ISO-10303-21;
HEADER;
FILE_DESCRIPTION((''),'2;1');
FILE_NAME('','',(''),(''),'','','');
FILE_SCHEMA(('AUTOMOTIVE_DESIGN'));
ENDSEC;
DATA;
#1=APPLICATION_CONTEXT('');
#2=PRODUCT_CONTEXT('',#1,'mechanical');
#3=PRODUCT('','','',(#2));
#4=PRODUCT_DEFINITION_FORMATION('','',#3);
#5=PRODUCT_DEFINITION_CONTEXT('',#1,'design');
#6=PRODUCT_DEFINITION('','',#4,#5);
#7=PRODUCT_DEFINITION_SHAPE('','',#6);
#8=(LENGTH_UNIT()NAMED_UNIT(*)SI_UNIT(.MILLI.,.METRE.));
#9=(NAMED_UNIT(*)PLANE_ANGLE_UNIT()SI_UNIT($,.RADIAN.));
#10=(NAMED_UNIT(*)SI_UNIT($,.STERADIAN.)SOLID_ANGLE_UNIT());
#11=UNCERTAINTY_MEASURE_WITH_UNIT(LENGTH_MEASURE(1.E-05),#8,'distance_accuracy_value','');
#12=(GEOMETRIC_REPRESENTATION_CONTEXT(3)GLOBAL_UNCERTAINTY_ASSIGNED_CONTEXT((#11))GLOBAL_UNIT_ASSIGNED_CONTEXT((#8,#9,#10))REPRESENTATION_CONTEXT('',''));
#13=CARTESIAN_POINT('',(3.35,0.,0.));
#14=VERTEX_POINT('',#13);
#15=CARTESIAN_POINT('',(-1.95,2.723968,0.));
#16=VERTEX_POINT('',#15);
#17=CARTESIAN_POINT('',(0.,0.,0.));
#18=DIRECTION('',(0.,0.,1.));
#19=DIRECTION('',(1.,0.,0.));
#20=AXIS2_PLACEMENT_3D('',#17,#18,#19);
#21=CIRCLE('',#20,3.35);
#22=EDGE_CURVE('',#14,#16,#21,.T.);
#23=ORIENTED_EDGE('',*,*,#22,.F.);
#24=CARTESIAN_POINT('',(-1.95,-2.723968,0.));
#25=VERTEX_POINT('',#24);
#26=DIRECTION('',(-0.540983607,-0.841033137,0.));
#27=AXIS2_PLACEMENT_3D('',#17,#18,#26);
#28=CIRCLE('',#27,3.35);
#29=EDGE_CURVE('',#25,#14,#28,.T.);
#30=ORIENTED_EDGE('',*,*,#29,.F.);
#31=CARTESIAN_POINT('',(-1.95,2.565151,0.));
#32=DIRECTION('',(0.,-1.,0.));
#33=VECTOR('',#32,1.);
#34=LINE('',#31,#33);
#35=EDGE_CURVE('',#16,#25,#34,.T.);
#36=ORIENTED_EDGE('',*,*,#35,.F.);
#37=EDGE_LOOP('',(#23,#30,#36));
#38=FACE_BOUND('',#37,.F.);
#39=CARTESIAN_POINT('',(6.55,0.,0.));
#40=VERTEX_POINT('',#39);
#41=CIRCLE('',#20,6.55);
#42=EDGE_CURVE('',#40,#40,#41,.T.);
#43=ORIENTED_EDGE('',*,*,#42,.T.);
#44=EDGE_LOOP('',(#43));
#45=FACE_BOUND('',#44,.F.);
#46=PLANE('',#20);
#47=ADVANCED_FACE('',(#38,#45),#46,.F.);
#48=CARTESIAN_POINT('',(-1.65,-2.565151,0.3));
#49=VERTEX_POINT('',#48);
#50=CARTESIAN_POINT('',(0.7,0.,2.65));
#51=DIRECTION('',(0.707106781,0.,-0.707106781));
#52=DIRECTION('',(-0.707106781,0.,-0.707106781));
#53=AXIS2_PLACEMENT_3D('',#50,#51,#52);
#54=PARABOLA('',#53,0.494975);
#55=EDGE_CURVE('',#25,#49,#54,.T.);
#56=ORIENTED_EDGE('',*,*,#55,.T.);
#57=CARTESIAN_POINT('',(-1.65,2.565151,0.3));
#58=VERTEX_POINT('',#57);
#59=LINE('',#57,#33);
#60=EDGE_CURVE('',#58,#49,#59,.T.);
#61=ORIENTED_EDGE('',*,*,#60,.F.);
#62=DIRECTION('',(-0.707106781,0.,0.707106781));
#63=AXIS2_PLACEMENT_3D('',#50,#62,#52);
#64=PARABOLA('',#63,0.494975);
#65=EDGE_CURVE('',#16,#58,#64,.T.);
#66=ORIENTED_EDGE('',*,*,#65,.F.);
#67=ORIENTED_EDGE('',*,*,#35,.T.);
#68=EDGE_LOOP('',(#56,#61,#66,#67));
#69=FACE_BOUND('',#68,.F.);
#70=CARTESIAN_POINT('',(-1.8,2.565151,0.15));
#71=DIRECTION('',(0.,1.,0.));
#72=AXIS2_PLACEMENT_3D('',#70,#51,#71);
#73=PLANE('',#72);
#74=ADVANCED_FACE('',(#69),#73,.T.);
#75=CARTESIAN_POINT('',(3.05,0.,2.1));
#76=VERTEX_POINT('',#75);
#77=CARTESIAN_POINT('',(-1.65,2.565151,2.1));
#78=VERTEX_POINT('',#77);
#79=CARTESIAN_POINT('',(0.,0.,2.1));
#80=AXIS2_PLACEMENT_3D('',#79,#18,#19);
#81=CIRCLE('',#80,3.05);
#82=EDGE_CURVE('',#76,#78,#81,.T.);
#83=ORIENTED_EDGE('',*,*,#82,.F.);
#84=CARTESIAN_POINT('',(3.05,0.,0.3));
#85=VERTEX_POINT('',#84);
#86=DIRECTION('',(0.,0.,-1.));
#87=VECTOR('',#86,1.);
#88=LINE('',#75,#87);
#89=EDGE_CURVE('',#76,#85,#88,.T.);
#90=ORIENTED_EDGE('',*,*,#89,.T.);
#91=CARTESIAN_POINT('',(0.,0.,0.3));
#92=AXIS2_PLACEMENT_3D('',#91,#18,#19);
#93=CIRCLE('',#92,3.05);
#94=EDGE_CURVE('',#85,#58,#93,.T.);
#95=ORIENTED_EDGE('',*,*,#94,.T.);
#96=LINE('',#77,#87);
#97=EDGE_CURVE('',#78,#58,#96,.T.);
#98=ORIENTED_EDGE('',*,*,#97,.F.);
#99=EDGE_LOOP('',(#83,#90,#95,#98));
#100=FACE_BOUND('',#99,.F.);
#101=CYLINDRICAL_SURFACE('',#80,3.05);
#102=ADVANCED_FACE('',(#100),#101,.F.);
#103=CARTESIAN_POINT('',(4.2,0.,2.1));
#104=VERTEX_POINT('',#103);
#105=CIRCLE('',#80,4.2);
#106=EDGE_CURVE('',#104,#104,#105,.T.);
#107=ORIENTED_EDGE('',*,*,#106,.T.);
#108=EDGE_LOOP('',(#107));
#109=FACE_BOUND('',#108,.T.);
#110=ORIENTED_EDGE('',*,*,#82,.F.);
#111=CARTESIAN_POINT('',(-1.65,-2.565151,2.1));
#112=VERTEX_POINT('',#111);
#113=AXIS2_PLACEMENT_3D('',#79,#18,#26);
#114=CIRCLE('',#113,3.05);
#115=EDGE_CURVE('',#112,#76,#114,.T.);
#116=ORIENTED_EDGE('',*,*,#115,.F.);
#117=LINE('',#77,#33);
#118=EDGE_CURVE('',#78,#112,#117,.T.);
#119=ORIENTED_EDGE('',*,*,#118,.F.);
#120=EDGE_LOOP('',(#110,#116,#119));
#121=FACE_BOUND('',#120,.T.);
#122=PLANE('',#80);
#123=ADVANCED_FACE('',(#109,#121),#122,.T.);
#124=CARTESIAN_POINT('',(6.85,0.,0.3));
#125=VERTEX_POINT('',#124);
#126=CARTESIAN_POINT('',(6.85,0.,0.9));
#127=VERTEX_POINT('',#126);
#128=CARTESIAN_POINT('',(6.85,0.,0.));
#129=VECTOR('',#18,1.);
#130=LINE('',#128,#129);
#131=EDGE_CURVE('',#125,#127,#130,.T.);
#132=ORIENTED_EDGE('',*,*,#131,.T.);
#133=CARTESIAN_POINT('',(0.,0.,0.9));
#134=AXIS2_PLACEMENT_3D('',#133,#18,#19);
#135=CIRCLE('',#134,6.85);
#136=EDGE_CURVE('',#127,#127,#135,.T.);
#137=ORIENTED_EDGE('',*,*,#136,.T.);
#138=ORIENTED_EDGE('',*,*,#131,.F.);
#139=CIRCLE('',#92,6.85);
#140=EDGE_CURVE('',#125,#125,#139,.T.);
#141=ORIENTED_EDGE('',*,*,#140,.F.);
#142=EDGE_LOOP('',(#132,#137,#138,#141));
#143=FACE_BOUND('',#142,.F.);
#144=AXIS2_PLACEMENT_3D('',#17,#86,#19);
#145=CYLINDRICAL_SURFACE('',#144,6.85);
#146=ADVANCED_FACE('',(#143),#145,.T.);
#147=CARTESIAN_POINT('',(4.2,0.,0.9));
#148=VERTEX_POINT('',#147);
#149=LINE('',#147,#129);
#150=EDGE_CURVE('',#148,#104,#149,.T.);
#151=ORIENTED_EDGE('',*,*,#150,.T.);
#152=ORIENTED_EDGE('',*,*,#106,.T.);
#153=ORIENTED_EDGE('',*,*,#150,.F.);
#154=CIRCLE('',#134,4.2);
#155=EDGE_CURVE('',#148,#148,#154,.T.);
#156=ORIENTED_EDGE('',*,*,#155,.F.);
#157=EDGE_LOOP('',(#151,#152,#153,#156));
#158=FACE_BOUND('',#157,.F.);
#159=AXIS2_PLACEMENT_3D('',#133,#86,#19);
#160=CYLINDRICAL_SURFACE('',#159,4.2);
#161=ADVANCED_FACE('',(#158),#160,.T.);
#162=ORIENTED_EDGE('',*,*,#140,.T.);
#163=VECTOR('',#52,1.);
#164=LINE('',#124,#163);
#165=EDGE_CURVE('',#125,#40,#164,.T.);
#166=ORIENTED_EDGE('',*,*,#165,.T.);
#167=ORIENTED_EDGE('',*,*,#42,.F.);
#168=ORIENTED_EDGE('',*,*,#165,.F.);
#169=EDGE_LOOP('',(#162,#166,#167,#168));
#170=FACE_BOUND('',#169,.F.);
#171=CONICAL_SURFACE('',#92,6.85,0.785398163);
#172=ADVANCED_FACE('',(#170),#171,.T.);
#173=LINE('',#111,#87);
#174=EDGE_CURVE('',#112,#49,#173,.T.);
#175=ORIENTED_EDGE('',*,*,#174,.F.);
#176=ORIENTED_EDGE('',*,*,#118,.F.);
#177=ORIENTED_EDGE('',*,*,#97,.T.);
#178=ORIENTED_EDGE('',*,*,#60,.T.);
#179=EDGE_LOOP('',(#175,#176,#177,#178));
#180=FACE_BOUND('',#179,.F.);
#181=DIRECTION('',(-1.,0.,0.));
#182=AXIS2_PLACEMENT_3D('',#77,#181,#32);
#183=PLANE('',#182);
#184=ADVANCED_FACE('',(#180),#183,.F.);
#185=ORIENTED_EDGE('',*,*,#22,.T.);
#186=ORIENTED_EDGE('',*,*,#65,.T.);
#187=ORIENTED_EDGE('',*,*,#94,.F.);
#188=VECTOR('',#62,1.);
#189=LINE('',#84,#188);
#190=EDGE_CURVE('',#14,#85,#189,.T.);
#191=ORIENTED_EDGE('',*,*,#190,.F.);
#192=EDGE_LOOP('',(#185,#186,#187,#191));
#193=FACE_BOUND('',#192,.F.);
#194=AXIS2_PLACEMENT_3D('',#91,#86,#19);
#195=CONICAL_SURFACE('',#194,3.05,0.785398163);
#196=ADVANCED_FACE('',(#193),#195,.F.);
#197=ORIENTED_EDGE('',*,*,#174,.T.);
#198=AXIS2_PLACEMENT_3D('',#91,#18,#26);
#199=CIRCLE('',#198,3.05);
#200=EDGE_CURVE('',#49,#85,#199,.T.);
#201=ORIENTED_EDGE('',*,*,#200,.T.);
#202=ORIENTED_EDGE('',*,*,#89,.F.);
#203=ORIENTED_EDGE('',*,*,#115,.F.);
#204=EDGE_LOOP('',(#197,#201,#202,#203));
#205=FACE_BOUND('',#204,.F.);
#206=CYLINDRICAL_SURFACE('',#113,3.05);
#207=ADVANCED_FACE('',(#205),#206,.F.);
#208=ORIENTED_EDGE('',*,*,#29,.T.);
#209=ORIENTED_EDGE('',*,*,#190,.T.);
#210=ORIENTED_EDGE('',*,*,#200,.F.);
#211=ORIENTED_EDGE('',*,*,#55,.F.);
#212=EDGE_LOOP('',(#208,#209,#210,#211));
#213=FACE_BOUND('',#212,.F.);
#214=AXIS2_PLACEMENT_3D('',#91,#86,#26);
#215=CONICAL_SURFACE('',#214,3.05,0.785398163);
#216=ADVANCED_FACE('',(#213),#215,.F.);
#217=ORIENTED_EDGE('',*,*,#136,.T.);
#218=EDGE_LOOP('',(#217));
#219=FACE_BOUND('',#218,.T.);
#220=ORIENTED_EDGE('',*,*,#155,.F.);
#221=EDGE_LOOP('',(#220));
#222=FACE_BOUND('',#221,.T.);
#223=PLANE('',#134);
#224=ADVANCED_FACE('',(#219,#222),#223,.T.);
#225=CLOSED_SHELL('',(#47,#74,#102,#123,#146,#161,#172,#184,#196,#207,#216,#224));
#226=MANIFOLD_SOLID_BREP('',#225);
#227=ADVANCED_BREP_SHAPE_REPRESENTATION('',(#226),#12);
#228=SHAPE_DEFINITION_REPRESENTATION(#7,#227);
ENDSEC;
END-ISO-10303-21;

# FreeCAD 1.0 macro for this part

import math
import FreeCAD as App
import Part
import Sketcher
from FreeCAD import Vector


def edges_at(feature, points):
    """Names of the edges that pass closest to the given points."""
    edges = feature.Shape.Edges
    near = lambda p: min(range(len(edges)), key=lambda i: edges[i].distToShape(Part.Vertex(*p))[0])
    return sorted({f"Edge{near(p) + 1}" for p in points})

doc = App.newDocument("Part")
body = doc.addObject("PartDesign::Body", "Body")

# Sketch on XY plane
sketch1 = body.newObject("Sketcher::SketchObject", "Sketch")
sketch1.AttachmentSupport = (doc.getObject("XY_Plane"), [""])
sketch1.MapMode = "FlatFace"
sketch1.addGeometry(Part.Circle(Vector(0, 0, 0), Vector(0, 0, 1), 7), False)
sketch1.addConstraint([
    Sketcher.Constraint("Coincident", 0, 3, -1, 1),
    Sketcher.Constraint("Diameter", 0, 13.7),
])
pad1 = body.newObject("PartDesign::Pad", "Pad")
pad1.Profile = sketch1
pad1.Length = 0.9

# Sketch on XY plane
sketch2 = body.newObject("Sketcher::SketchObject", "Sketch001")
sketch2.AttachmentSupport = (doc.getObject("XY_Plane"), [""])
sketch2.MapMode = "FlatFace"
sketch2.AttachmentOffset = App.Placement(Vector(0, 0, 0.9), App.Rotation())
sketch2.addGeometry(Part.Circle(Vector(0, 0, 0), Vector(0, 0, 1), 4.2), False)
sketch2.addConstraint([
    Sketcher.Constraint("Coincident", 0, 3, -1, 1),
    Sketcher.Constraint("Diameter", 0, 8.4),
])
pad2 = body.newObject("PartDesign::Pad", "Pad001")
pad2.Profile = sketch2
pad2.Length = 1.2

# Sketch on XY plane
sketch3 = body.newObject("Sketcher::SketchObject", "Sketch002")
sketch3.AttachmentSupport = (doc.getObject("XY_Plane"), [""])
sketch3.MapMode = "FlatFace"
sketch3.AttachmentOffset = App.Placement(Vector(0, 0, 2.1), App.Rotation())
sketch3.addGeometry([
    Part.ArcOfCircle(Part.Circle(Vector(0, 0, 0), Vector(0, 0, 1), 3), math.radians(-123), math.radians(0)),
    Part.ArcOfCircle(Part.Circle(Vector(0, 0, 0), Vector(0, 0, 1), 3), math.radians(0), math.radians(123)),
    Part.LineSegment(Vector(-1.6, 2.6, 0), Vector(-1.6, -2.6, 0)),
], False)
sketch3.addConstraint([
    Sketcher.Constraint("Tangent", 0, 2, 1, 1),
    Sketcher.Constraint("Coincident", 1, 2, 2, 1),
    Sketcher.Constraint("Coincident", 2, 2, 0, 1),
    Sketcher.Constraint("Vertical", 2),
    Sketcher.Constraint("Coincident", 0, 3, -1, 1),
    Sketcher.Constraint("Equal", 0, 1),
    Sketcher.Constraint("PointOnObject", 0, 2, -1),
    Sketcher.Constraint("Radius", 0, 3.05),
    Sketcher.Constraint("DistanceX", 1, 2, 0, 2, 4.7),
])
pocket1 = body.newObject("PartDesign::Pocket", "Pocket")
pocket1.Profile = sketch3
pocket1.Type = "ThroughAll"
doc.recompute()

chamfer = body.newObject("PartDesign::Chamfer", "Chamfer")
chamfer.Base = (pocket1, edges_at(pocket1, [(-6.85, 0, 0), (1.461, -2.677, 0), (-1.65, 0, 0)]))
chamfer.Size = 0.3

doc.recompute()
